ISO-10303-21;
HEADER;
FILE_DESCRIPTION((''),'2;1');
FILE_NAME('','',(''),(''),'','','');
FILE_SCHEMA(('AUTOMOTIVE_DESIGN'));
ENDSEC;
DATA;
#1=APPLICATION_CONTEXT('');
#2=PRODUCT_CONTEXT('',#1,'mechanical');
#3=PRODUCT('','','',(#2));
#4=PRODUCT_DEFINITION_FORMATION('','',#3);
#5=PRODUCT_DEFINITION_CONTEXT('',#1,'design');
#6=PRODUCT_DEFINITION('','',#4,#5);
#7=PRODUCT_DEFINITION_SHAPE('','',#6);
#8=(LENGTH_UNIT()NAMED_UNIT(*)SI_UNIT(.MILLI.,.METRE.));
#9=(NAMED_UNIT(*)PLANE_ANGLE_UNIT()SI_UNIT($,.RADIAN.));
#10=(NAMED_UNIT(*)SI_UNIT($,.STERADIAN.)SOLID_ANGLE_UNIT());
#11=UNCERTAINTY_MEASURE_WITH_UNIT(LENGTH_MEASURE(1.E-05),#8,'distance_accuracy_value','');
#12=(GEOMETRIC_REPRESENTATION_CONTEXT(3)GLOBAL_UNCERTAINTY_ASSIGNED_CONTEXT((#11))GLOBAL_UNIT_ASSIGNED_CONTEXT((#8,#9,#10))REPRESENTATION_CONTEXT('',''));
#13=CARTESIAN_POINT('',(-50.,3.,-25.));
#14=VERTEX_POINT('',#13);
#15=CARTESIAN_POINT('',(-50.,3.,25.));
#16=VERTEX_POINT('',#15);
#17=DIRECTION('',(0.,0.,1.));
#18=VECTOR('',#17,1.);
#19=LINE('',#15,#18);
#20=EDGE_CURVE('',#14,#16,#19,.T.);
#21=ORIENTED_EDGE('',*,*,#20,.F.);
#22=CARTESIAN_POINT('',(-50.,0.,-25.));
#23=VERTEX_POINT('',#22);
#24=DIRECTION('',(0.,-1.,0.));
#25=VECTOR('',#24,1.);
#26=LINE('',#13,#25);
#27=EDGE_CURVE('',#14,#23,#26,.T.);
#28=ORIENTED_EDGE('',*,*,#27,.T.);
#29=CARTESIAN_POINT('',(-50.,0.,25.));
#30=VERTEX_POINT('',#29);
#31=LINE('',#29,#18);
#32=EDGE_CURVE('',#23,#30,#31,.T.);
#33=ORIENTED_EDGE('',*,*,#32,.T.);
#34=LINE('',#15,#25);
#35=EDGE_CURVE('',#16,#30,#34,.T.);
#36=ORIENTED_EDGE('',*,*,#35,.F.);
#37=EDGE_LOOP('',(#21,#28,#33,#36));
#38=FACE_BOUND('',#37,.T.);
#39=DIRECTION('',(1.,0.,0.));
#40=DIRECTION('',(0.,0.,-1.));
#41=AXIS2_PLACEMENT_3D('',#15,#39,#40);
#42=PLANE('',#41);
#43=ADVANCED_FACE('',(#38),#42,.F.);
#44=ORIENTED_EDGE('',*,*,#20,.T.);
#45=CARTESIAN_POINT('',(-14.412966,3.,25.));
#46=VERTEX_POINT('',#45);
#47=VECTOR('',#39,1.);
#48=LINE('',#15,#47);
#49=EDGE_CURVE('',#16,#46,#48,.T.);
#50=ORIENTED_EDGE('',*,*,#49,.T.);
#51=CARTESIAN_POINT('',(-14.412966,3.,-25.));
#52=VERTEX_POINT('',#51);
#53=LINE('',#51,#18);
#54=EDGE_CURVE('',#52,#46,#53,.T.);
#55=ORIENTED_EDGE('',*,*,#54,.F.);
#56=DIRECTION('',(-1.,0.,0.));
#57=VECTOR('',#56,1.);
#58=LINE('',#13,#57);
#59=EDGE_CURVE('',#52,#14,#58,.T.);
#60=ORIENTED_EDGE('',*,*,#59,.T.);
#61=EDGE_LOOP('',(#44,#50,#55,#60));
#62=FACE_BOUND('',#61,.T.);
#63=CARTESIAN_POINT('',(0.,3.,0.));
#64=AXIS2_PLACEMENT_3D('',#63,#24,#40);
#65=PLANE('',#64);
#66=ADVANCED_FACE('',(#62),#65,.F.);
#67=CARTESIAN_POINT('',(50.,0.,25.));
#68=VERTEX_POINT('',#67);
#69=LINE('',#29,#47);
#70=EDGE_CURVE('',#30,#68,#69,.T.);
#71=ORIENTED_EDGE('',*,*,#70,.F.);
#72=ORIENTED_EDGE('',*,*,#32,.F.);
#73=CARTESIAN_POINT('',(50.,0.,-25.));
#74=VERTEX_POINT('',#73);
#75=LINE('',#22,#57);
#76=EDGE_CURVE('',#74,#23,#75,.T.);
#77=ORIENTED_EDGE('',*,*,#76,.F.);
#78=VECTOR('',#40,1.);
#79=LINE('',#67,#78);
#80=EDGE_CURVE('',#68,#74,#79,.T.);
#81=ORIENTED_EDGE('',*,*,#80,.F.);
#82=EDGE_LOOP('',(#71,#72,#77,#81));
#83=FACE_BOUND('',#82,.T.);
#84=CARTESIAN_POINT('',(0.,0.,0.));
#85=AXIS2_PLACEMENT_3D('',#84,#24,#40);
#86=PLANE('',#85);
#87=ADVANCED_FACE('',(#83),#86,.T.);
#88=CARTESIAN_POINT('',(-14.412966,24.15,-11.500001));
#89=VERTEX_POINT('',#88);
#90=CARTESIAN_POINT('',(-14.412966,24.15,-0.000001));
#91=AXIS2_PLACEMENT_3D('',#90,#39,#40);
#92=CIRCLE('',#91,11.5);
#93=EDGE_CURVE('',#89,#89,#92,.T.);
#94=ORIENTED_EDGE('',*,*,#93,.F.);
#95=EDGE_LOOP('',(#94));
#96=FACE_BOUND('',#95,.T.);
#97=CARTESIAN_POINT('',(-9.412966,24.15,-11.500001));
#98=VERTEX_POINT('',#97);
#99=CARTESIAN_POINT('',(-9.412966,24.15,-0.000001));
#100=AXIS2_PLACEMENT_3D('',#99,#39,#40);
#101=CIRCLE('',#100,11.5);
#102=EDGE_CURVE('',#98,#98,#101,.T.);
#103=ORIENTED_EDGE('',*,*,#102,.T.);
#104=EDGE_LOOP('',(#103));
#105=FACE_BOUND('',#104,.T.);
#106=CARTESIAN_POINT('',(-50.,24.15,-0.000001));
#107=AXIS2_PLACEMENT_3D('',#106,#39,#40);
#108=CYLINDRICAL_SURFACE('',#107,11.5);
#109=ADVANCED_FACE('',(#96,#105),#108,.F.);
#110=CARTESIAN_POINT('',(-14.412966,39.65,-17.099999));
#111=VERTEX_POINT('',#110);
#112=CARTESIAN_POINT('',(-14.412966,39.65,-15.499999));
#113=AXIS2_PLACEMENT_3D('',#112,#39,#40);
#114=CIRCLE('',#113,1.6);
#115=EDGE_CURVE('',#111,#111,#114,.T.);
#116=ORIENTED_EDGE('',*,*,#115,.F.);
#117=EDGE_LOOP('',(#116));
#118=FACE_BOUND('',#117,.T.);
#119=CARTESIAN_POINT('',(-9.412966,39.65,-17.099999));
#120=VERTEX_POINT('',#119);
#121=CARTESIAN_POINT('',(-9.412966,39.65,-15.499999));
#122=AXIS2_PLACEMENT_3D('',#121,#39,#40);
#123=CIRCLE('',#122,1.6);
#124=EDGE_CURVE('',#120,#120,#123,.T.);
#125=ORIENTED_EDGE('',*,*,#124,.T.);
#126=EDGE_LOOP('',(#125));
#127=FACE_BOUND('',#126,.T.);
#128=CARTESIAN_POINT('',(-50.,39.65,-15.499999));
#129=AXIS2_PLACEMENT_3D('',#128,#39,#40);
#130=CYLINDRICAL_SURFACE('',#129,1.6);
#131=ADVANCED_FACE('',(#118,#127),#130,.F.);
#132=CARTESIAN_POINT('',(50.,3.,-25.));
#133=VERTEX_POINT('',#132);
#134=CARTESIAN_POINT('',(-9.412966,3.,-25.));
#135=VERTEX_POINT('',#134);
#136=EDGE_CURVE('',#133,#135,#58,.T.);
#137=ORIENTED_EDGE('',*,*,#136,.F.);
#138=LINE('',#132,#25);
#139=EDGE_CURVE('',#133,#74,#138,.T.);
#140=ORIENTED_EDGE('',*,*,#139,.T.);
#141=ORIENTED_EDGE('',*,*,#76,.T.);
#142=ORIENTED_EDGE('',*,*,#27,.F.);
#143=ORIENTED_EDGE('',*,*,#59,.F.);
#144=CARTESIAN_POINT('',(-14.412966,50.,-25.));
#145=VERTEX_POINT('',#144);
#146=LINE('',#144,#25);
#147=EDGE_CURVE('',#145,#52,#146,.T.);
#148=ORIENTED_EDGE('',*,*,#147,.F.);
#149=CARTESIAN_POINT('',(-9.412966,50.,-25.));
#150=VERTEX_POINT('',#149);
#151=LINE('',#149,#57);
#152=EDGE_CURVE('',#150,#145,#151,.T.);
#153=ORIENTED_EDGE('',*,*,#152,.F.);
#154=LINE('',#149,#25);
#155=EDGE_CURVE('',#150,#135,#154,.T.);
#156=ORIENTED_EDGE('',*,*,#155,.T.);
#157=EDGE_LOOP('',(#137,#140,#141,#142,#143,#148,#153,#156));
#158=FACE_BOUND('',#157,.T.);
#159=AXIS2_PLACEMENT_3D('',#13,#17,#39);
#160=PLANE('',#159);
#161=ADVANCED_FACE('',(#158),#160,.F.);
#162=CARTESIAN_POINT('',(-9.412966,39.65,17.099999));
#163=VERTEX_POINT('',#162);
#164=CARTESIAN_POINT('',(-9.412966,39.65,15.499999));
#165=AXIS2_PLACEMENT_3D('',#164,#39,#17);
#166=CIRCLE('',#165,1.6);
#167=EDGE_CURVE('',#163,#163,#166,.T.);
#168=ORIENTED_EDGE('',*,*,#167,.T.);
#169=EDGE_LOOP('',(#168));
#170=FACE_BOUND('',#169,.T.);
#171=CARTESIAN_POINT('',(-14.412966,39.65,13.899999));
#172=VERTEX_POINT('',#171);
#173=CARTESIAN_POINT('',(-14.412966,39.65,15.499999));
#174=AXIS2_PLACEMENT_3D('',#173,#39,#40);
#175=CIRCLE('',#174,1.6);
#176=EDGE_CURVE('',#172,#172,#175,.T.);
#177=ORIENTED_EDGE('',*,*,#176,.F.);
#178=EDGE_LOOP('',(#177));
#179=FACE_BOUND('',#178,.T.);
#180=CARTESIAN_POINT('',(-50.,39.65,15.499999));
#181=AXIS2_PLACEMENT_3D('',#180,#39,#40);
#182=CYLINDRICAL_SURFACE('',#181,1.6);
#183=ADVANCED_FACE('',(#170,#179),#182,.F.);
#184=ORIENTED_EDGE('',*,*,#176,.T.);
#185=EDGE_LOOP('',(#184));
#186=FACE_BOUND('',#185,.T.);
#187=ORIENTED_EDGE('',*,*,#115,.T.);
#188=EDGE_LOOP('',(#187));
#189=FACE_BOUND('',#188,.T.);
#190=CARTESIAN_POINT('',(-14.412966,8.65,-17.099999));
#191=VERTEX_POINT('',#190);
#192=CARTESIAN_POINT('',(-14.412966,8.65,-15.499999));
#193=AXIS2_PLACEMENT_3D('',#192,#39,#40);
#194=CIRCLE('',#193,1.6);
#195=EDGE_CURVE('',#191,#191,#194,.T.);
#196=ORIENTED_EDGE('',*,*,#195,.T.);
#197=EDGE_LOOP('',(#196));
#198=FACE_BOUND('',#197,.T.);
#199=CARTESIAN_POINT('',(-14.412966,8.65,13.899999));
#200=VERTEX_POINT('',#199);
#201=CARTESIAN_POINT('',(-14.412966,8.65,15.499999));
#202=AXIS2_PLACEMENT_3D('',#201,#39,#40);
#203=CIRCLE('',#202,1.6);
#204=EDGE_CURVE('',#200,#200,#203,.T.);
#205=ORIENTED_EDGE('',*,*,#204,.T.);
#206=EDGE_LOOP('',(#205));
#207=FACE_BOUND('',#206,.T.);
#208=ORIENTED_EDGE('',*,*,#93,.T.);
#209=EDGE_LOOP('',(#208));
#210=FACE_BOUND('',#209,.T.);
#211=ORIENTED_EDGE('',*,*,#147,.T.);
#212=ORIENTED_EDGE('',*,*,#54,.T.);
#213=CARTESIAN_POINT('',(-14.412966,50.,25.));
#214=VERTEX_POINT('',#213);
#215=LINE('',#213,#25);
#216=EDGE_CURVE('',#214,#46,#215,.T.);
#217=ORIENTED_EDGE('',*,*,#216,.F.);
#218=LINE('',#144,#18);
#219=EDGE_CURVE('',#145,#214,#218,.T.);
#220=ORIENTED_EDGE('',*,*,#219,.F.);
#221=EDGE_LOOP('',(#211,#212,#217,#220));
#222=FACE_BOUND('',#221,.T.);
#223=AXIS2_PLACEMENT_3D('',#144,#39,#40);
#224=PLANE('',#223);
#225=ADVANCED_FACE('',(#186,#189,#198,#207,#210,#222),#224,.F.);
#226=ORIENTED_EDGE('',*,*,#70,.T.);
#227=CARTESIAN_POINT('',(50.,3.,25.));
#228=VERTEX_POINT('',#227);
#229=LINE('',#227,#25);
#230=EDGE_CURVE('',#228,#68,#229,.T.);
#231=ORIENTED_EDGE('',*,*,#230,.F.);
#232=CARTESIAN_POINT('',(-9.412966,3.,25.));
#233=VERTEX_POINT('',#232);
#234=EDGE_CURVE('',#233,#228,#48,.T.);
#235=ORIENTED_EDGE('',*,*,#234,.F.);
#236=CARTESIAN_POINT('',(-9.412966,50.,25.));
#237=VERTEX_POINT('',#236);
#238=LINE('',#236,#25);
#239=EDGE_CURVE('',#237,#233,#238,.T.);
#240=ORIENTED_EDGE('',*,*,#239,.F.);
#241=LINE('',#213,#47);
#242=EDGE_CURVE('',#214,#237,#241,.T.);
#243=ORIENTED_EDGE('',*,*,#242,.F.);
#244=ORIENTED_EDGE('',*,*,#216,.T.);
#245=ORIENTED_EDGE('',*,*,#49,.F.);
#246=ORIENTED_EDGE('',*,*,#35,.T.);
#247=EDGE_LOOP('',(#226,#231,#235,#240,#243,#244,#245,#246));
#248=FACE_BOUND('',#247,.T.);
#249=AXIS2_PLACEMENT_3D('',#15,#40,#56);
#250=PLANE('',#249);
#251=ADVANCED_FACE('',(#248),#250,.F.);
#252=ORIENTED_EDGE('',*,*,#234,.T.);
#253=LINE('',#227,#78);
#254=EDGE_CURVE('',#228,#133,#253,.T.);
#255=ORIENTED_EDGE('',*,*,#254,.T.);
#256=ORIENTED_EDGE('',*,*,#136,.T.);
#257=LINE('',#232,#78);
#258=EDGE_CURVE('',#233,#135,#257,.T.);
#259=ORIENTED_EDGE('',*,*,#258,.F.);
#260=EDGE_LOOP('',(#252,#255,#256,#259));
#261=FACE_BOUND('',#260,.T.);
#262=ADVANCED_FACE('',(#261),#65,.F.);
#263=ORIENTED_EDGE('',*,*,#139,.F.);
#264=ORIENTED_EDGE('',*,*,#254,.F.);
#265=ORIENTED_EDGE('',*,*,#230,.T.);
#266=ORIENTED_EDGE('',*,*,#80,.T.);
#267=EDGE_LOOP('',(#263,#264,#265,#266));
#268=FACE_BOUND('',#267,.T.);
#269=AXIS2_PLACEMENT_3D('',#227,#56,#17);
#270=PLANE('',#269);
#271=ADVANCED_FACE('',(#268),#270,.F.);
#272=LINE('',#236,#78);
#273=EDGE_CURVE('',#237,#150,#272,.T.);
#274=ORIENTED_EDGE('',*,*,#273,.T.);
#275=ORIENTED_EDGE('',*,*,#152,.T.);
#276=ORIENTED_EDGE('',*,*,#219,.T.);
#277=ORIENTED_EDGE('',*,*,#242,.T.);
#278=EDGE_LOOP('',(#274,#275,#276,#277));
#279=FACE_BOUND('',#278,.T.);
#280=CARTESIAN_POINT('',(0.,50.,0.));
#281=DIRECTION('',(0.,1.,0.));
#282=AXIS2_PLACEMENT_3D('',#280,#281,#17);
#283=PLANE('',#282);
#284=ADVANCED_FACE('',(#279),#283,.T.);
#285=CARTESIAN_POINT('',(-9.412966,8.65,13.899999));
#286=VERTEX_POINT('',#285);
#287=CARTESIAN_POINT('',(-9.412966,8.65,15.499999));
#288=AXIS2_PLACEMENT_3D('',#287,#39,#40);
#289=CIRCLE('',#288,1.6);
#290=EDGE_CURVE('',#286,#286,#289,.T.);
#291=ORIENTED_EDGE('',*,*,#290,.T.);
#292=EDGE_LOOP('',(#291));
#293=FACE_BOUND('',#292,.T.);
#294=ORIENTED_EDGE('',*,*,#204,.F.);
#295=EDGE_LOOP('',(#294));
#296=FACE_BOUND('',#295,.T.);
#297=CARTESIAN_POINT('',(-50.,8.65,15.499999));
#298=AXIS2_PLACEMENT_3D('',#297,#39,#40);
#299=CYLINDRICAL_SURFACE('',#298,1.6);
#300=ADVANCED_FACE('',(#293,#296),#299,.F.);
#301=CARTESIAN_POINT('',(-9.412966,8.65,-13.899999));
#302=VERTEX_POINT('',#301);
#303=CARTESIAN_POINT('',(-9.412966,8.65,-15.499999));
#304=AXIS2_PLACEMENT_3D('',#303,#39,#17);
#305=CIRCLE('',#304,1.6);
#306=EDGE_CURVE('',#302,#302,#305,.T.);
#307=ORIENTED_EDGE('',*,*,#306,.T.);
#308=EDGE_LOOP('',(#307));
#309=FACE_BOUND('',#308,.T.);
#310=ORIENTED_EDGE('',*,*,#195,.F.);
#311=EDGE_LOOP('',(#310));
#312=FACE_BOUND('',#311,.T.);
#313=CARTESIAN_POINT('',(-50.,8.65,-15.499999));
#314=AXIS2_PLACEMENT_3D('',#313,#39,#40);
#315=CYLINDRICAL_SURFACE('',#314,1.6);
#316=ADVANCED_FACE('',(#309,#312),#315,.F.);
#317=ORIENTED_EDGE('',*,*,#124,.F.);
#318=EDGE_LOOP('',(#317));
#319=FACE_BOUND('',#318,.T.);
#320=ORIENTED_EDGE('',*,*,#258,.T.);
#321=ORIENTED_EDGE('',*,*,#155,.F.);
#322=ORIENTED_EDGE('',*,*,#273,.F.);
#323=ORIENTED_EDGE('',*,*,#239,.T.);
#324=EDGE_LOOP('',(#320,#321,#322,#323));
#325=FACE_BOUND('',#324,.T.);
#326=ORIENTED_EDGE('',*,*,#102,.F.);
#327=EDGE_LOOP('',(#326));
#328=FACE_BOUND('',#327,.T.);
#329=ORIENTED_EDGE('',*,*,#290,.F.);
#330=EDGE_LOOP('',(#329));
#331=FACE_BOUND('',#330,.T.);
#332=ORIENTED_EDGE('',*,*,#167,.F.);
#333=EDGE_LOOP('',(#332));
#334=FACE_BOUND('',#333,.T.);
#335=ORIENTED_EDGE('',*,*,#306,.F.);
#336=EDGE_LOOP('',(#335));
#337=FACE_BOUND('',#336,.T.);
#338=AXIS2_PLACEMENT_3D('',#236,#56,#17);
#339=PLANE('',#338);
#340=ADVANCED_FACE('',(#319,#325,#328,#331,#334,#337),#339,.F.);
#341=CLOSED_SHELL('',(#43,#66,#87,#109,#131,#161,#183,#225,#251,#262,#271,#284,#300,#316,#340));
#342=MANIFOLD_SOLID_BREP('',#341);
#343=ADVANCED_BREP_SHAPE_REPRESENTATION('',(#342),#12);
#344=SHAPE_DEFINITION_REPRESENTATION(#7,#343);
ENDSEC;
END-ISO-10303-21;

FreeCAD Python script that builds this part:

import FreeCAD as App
import Part
import Sketcher

V = App.Vector
Q = App.Units.Quantity

doc = App.newDocument("Part")
body = doc.addObject("PartDesign::Body", "Body")

# Sketch on XZ plane
sketch1 = doc.addObject("Sketcher::SketchObject", "Sketch")
body.addObject(sketch1)
sketch1.AttachmentSupport = (doc.XZ_Plane, [""])
sketch1.MapMode = "FlatFace"
sketch1.addGeometry(Part.LineSegment(V(-50, -25, 0), V(-50, 25, 0)), False)
sketch1.addGeometry(Part.LineSegment(V(-50, 25, 0), V(50, 25, 0)), False)
sketch1.addGeometry(Part.LineSegment(V(50, 25, 0), V(50, -25, 0)), False)
sketch1.addGeometry(Part.LineSegment(V(50, -25, 0), V(-50, -25, 0)), False)
sketch1.addConstraint(Sketcher.Constraint("Coincident", 0, 2, 1, 1))
sketch1.addConstraint(Sketcher.Constraint("Coincident", 1, 2, 2, 1))
sketch1.addConstraint(Sketcher.Constraint("Coincident", 2, 2, 3, 1))
sketch1.addConstraint(Sketcher.Constraint("Coincident", 3, 2, 0, 1))
sketch1.addConstraint(Sketcher.Constraint("Vertical", 0))
sketch1.addConstraint(Sketcher.Constraint("Horizontal", 1))
sketch1.addConstraint(Sketcher.Constraint("Vertical", 2))
sketch1.addConstraint(Sketcher.Constraint("Horizontal", 3))
sketch1.addConstraint(Sketcher.Constraint("Symmetric", 0, 2, 2, 2, -1, 1))
sketch1.addConstraint(Sketcher.Constraint("DistanceX", 1, 1, 1, 2, Q("100 mm")))
sketch1.addConstraint(Sketcher.Constraint("DistanceY", 0, 1, 0, 2, Q("50 mm")))
pad1 = doc.addObject("PartDesign::Pad", "Pad")
body.addObject(pad1)
pad1.Profile = sketch1
pad1.Length = 3
pad1.Reversed = True

# Sketch on XZ plane
sketch2 = doc.addObject("Sketcher::SketchObject", "Sketch001")
body.addObject(sketch2)
sketch2.AttachmentSupport = (doc.XZ_Plane, [""])
sketch2.MapMode = "FlatFace"
sketch2.AttachmentOffset = App.Placement(V(0, 0, -3), App.Rotation())
sketch2.addGeometry(Part.LineSegment(V(-14, -25, 0), V(-14, 25, 0)), False)
sketch2.addGeometry(Part.LineSegment(V(-14, 25, 0), V(-9, 25, 0)), False)
sketch2.addGeometry(Part.LineSegment(V(-9, 25, 0), V(-9, -25, 0)), False)
sketch2.addGeometry(Part.LineSegment(V(-9, -25, 0), V(-14, -25, 0)), False)
sketch2.addConstraint(Sketcher.Constraint("Coincident", 0, 2, 1, 1))
sketch2.addConstraint(Sketcher.Constraint("Coincident", 1, 2, 2, 1))
sketch2.addConstraint(Sketcher.Constraint("Coincident", 2, 2, 3, 1))
sketch2.addConstraint(Sketcher.Constraint("Coincident", 3, 2, 0, 1))
sketch2.addConstraint(Sketcher.Constraint("Vertical", 0))
sketch2.addConstraint(Sketcher.Constraint("Horizontal", 1))
sketch2.addConstraint(Sketcher.Constraint("Vertical", 2))
sketch2.addConstraint(Sketcher.Constraint("Horizontal", 3))
sketch2.addConstraint(Sketcher.Constraint("DistanceX", 1, 1, 1, 2, Q("5 mm")))
sketch2.addConstraint(Sketcher.Constraint("DistanceY", 0, 1, 0, 2, Q("50 mm")))
sketch2.addConstraint(Sketcher.Constraint("DistanceY", -1, 1, 0, 2, Q("25 mm")))
sketch2.addConstraint(Sketcher.Constraint("DistanceX", 0, 2, -1, 1, Q("14.412966 mm")))
pad2 = doc.addObject("PartDesign::Pad", "Pad001")
body.addObject(pad2)
pad2.Profile = sketch2
pad2.Length = 47
pad2.Reversed = True

# Sketch on YZ plane
sketch3 = doc.addObject("Sketcher::SketchObject", "Sketch002")
body.addObject(sketch3)
sketch3.AttachmentSupport = (doc.YZ_Plane, [""])
sketch3.MapMode = "FlatFace"
sketch3.AttachmentOffset = App.Placement(V(0, 0, -9.412966), App.Rotation())
sketch3.addGeometry(Part.Circle(V(24, 0, 0), V(0, 0, 1), 12), False)
sketch3.addConstraint(Sketcher.Constraint("PointOnObject", 0, 3, -1))
sketch3.addConstraint(Sketcher.Constraint("Diameter", 0, Q("23 mm")))
sketch3.addConstraint(Sketcher.Constraint("DistanceX", -1, 1, 0, 3, Q("24.15 mm")))
pocket1 = doc.addObject("PartDesign::Pocket", "Pocket")
body.addObject(pocket1)
pocket1.Profile = sketch3
pocket1.Type = "ThroughAll"

# Sketch on YZ plane
sketch4 = doc.addObject("Sketcher::SketchObject", "Sketch003")
body.addObject(sketch4)
sketch4.AttachmentSupport = (doc.YZ_Plane, [""])
sketch4.MapMode = "FlatFace"
sketch4.AttachmentOffset = App.Placement(V(0, 0, -9.412966), App.Rotation())
sketch4.addGeometry(Part.Circle(V(8.7, 15.5, 0), V(0, 0, 1), 1.6), False)
sketch4.addGeometry(Part.Circle(V(39.6, 15.5, 0), V(0, 0, 1), 1.6), False)
sketch4.addGeometry(Part.Circle(V(39.6, -15.5, 0), V(0, 0, 1), 1.6), False)
sketch4.addGeometry(Part.Circle(V(8.7, -15.5, 0), V(0, 0, 1), 1.6), False)
sketch4.addConstraint(Sketcher.Constraint("Equal", 0, 1))
sketch4.addConstraint(Sketcher.Constraint("Equal", 1, 2))
sketch4.addConstraint(Sketcher.Constraint("Equal", 2, 3))
sketch4.addConstraint(Sketcher.Constraint("Symmetric", 1, 3, 2, 3, -1))
sketch4.addConstraint(Sketcher.Constraint("Symmetric", 0, 3, 3, 3, -1))
sketch4.addConstraint(Sketcher.Constraint("Horizontal", 0, 3, 1, 3))
sketch4.addConstraint(Sketcher.Constraint("Diameter", 0, Q("3.2 mm")))
sketch4.addConstraint(Sketcher.Constraint("DistanceX", 0, 3, 1, 3, Q("31 mm")))
sketch4.addConstraint(Sketcher.Constraint("DistanceY", -1, 1, 0, 3, Q("15.499999 mm")))
sketch4.addConstraint(Sketcher.Constraint("DistanceX", -1, 1, 0, 3, Q("8.65 mm")))
pocket2 = doc.addObject("PartDesign::Pocket", "Pocket001")
body.addObject(pocket2)
pocket2.Profile = sketch4
pocket2.Type = "ThroughAll"

doc.recompute()
